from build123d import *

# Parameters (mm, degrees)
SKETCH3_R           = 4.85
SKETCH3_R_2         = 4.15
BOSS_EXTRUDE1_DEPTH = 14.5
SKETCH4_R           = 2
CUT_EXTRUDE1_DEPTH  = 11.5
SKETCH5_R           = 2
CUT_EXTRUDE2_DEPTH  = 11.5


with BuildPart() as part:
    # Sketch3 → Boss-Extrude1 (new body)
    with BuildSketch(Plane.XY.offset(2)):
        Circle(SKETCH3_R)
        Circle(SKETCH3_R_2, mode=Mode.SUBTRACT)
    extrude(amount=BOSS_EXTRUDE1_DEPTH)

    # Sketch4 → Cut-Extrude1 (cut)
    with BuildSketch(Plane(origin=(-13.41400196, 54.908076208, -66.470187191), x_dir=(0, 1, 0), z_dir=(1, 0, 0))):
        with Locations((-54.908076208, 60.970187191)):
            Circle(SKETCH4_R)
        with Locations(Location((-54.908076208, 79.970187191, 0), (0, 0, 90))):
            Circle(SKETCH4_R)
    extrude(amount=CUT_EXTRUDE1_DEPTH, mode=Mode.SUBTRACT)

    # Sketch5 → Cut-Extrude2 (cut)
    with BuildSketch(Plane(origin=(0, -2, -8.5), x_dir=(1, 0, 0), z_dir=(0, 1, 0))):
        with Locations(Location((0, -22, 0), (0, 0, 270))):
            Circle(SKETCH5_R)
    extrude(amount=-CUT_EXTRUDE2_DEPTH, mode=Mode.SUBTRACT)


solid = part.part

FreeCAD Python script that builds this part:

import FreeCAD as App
import Part
import Sketcher

V = App.Vector
Q = App.Units.Quantity

doc = App.newDocument("Part")
body = doc.addObject("PartDesign::Body", "Body")

# Sketch on XY plane
sketch1 = body.newObject("Sketcher::SketchObject", "Sketch")
sketch1.AttachmentSupport = (doc.getObject("XY_Plane"), [""])
sketch1.MapMode = "FlatFace"
sketch1.AttachmentOffset = App.Placement(V(0, 0, 2), App.Rotation())
sketch1.addGeometry(Part.Circle(V(0, 0, 0), V(0, 0, 1), 4.8), False)
sketch1.addGeometry(Part.Circle(V(0, 0, 0), V(0, 0, 1), 4.2), False)
sketch1.addConstraint(Sketcher.Constraint("Coincident", 0, 3, -1, 1))
sketch1.addConstraint(Sketcher.Constraint("Coincident", 1, 3, -1, 1))
sketch1.addConstraint(Sketcher.Constraint("Diameter", 0, Q("9.7 mm")))
sketch1.addConstraint(Sketcher.Constraint("Diameter", 1, Q("8.3 mm")))
pad1 = body.newObject("PartDesign::Pad", "Pad")
pad1.Profile = sketch1
pad1.Length = 14.5

# Sketch on YZ plane
sketch2 = body.newObject("Sketcher::SketchObject", "Sketch001")
sketch2.AttachmentSupport = (doc.getObject("YZ_Plane"), [""])
sketch2.MapMode = "FlatFace"
sketch2.AttachmentOffset = App.Placement(V(0, 0, -13.414002), App.Rotation())
sketch2.addGeometry(Part.Circle(V(0, -5.5, 0), V(0, 0, 1), 2), False)
sketch2.addGeometry(Part.Circle(V(0, 13.5, 0), V(0, 0, 1), 2), False)
sketch2.addConstraint(Sketcher.Constraint("Equal", 0, 1))
sketch2.addConstraint(Sketcher.Constraint("PointOnObject", 0, 3, -2))
sketch2.addConstraint(Sketcher.Constraint("PointOnObject", 1, 3, -2))
sketch2.addConstraint(Sketcher.Constraint("Diameter", 0, Q("4 mm")))
sketch2.addConstraint(Sketcher.Constraint("DistanceY", 0, 3, 1, 3, Q("19 mm")))
sketch2.addConstraint(Sketcher.Constraint("DistanceY", 0, 3, -1, 1, Q("5.5 mm")))
pocket1 = body.newObject("PartDesign::Pocket", "Pocket")
pocket1.Profile = sketch2
pocket1.Length = 11.5
pocket1.Reversed = True

# Sketch on XZ plane
sketch3 = body.newObject("Sketcher::SketchObject", "Sketch002")
sketch3.AttachmentSupport = (doc.getObject("XZ_Plane"), [""])
sketch3.MapMode = "FlatFace"
sketch3.AttachmentOffset = App.Placement(V(0, 0, 2), App.Rotation())
sketch3.addGeometry(Part.Circle(V(0, 13.5, 0), V(0, 0, 1), 2), False)
sketch3.addConstraint(Sketcher.Constraint("PointOnObject", 0, 3, -2))
sketch3.addConstraint(Sketcher.Constraint("Diameter", 0, Q("4 mm")))
sketch3.addConstraint(Sketcher.Constraint("DistanceY", -1, 1, 0, 3, Q("13.5 mm")))
pocket2 = body.newObject("PartDesign::Pocket", "Pocket001")
pocket2.Profile = sketch3
pocket2.Length = 11.5
pocket2.Reversed = True

doc.recompute()
